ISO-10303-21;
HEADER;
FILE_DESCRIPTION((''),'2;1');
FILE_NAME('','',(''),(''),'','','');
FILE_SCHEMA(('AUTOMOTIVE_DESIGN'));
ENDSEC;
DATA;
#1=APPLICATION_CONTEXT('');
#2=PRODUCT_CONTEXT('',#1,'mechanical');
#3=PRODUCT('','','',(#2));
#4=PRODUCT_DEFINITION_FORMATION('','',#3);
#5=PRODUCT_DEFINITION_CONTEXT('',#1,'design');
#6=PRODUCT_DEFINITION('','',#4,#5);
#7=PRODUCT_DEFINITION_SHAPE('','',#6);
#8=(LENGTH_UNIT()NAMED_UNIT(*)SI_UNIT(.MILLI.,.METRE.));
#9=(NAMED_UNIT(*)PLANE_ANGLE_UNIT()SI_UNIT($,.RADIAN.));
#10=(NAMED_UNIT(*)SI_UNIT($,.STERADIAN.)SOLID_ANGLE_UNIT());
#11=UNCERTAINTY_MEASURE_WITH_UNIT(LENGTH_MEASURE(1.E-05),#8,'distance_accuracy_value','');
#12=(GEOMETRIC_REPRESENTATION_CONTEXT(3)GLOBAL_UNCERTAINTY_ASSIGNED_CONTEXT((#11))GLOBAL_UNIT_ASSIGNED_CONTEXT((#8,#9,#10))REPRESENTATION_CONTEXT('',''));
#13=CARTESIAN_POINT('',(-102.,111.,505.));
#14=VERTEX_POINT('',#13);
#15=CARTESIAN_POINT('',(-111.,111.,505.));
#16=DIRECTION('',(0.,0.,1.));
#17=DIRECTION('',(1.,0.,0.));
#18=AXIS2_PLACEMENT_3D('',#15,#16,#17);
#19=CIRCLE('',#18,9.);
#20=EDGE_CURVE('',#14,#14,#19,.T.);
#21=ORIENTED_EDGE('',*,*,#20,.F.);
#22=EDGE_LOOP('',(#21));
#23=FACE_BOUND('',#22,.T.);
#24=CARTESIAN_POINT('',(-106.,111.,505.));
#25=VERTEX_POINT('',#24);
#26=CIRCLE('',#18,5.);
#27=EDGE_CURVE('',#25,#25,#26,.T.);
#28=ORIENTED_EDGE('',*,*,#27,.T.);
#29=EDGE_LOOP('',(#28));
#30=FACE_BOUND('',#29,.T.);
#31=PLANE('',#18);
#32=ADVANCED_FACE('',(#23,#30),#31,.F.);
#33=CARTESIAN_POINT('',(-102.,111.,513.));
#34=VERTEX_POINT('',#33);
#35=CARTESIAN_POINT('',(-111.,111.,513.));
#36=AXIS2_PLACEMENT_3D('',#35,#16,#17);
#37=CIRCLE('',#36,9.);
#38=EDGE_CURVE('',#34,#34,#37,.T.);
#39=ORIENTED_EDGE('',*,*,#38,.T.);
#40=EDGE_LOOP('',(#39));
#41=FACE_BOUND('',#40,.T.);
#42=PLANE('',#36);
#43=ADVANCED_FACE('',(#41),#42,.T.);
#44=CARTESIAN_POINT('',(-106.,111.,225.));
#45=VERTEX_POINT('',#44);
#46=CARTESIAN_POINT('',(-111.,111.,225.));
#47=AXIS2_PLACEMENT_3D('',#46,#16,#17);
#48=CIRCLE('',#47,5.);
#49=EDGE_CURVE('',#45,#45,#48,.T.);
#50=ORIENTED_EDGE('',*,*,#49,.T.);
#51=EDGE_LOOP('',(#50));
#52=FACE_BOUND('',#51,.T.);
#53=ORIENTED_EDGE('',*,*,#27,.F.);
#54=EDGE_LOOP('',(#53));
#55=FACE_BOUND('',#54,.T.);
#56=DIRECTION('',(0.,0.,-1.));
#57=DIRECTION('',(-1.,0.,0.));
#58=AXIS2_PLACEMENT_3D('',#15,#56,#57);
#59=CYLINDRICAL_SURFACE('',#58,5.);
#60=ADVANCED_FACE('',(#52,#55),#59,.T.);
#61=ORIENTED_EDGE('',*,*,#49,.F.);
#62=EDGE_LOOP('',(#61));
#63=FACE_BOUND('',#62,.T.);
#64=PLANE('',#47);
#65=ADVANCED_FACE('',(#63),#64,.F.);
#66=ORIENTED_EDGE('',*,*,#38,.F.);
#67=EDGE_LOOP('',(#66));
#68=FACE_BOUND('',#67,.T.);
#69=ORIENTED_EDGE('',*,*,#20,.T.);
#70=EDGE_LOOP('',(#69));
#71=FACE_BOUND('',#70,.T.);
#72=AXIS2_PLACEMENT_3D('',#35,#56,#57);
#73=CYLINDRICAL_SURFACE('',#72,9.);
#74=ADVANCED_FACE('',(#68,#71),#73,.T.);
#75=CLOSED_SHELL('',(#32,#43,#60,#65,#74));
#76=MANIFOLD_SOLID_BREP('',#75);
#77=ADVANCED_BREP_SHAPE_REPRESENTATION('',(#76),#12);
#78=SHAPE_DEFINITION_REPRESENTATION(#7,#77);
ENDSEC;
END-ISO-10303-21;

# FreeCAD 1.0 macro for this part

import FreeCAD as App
import Part
import Sketcher
Q = App.Units.Quantity

doc = App.newDocument("Part")
body = doc.addObject("PartDesign::Body", "Body")

sketch1 = body.newObject("Sketcher::SketchObject", "Sketch")
sketch1.AttachmentSupport = (doc.getObject("XY_Plane"), [""])
sketch1.MapMode = "FlatFace"
sketch1.AttachmentOffset = App.Placement(App.Vector(0, 0, 225), App.Rotation())
sketch1.addGeometry(Part.Circle(App.Vector(-111, 111, 0), App.Vector(0, 0, 1), 5), False)
sketch1.addConstraint([
    Sketcher.Constraint("Diameter", 0, Q("10 mm")),
    Sketcher.Constraint("DistanceX", 0, 3, -1, 1, Q("111 mm")),
    Sketcher.Constraint("DistanceY", -1, 1, 0, 3, Q("111 mm")),
])
pad1 = body.newObject("PartDesign::Pad", "Pad")
pad1.Profile = sketch1
pad1.Length = 280
body2 = doc.addObject("PartDesign::Body", "Body001")

sketch2 = body2.newObject("Sketcher::SketchObject", "Sketch001")
sketch2.AttachmentSupport = (doc.getObject("XY_Plane001"), [""])
sketch2.MapMode = "FlatFace"
sketch2.AttachmentOffset = App.Placement(App.Vector(0, 0, 505), App.Rotation())
sketch2.addGeometry(Part.Circle(App.Vector(-111, 111, 0), App.Vector(0, 0, 1), 9), False)
sketch2.addConstraint([
    Sketcher.Constraint("Diameter", 0, Q("18 mm")),
    Sketcher.Constraint("DistanceX", 0, 3, -1, 1, Q("111 mm")),
    Sketcher.Constraint("DistanceY", -1, 1, 0, 3, Q("111 mm")),
])
pad2 = body2.newObject("PartDesign::Pad", "Pad001")
pad2.Profile = sketch2
pad2.Length = 8
doc.recompute()

boolean = body2.newObject("PartDesign::Boolean", "Boolean")
boolean.Type = "Fuse"
boolean.addObjects([body])

doc.recompute()
